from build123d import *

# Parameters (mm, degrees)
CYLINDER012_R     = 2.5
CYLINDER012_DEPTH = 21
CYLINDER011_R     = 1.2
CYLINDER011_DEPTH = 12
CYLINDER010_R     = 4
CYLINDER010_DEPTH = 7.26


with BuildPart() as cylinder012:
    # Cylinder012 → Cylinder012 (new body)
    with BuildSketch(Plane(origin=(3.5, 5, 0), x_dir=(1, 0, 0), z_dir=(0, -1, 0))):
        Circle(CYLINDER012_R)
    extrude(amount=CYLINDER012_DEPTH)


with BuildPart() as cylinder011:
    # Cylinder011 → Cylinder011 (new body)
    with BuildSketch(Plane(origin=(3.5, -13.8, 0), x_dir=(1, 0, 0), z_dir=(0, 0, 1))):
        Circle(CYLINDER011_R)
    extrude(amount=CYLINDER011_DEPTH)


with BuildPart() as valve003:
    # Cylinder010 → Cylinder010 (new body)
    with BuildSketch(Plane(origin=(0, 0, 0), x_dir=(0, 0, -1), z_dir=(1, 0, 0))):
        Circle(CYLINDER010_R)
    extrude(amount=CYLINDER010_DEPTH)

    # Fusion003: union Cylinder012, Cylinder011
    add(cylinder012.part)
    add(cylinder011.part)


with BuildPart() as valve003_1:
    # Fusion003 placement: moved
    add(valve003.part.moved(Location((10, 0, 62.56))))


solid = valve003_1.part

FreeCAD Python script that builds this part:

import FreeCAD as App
import Part
import Sketcher
from FreeCAD import Vector

doc = App.newDocument("Part")
body = doc.addObject("PartDesign::Body", "Body")

# Sketch on XZ plane
sketch1 = doc.addObject("Sketcher::SketchObject", "Sketch")
body.addObject(sketch1)
sketch1.AttachmentSupport = (doc.XZ_Plane, [""])
sketch1.MapMode = "FlatFace"
sketch1.AttachmentOffset = App.Placement(Vector(0, 0, -5), App.Rotation())
sketch1.addGeometry(Part.Circle(Vector(3.5, 0, 0), Vector(0, 0, 1), 2.5), False)
sketch1.addConstraint([
    Sketcher.Constraint("PointOnObject", 0, 3, -1),
    Sketcher.Constraint("Diameter", 0, 5.0),
    Sketcher.Constraint("DistanceX", -1, 1, 0, 3, 3.5),
])
pad1 = doc.addObject("PartDesign::Pad", "Pad")
body.addObject(pad1)
pad1.Profile = sketch1
pad1.Length = 21
body2 = doc.addObject("PartDesign::Body", "Body001")

# Sketch on XY plane
sketch2 = doc.addObject("Sketcher::SketchObject", "Sketch001")
body2.addObject(sketch2)
sketch2.AttachmentSupport = (doc.getObject("XY_Plane001"), [""])
sketch2.MapMode = "FlatFace"
sketch2.addGeometry(Part.Circle(Vector(3.5, -13.8, 0), Vector(0, 0, 1), 1.2), False)
sketch2.addConstraint([
    Sketcher.Constraint("Diameter", 0, 2.4),
    Sketcher.Constraint("DistanceX", -1, 1, 0, 3, 3.5),
    Sketcher.Constraint("DistanceY", 0, 3, -1, 1, 13.8),
])
pad2 = doc.addObject("PartDesign::Pad", "Pad001")
body2.addObject(pad2)
pad2.Profile = sketch2
pad2.Length = 12
body3 = doc.addObject("PartDesign::Body", "Body002")

# Sketch on YZ plane
sketch3 = doc.addObject("Sketcher::SketchObject", "Sketch002")
body3.addObject(sketch3)
sketch3.AttachmentSupport = (doc.getObject("YZ_Plane002"), [""])
sketch3.MapMode = "FlatFace"
sketch3.addGeometry(Part.Circle(Vector(0, 0, 0), Vector(0, 0, 1), 4), False)
sketch3.addConstraint([
    Sketcher.Constraint("Coincident", 0, 3, -1, 1),
    Sketcher.Constraint("Diameter", 0, 8.0),
])
pad3 = doc.addObject("PartDesign::Pad", "Pad002")
body3.addObject(pad3)
pad3.Profile = sketch3
pad3.Length = 7.26
doc.recompute()

boolean = doc.addObject("PartDesign::Boolean", "Boolean")
body3.addObject(boolean)
boolean.Type = "Fuse"
boolean.addObjects([body])
doc.recompute()

boolean2 = doc.addObject("PartDesign::Boolean", "Boolean001")
body3.addObject(boolean2)
boolean2.Type = "Fuse"
boolean2.addObjects([body2])
body4 = doc.addObject("PartDesign::Body", "Body003")
doc.recompute()

body3.Placement = App.Placement(Vector(10, 0, 62.56), App.Rotation(Vector(0, 0, 1), 0))
boolean3 = doc.addObject("PartDesign::Boolean", "Boolean002")
body4.addObject(boolean3)
boolean3.Type = "Fuse"
boolean3.addObjects([body3])

doc.recompute()
